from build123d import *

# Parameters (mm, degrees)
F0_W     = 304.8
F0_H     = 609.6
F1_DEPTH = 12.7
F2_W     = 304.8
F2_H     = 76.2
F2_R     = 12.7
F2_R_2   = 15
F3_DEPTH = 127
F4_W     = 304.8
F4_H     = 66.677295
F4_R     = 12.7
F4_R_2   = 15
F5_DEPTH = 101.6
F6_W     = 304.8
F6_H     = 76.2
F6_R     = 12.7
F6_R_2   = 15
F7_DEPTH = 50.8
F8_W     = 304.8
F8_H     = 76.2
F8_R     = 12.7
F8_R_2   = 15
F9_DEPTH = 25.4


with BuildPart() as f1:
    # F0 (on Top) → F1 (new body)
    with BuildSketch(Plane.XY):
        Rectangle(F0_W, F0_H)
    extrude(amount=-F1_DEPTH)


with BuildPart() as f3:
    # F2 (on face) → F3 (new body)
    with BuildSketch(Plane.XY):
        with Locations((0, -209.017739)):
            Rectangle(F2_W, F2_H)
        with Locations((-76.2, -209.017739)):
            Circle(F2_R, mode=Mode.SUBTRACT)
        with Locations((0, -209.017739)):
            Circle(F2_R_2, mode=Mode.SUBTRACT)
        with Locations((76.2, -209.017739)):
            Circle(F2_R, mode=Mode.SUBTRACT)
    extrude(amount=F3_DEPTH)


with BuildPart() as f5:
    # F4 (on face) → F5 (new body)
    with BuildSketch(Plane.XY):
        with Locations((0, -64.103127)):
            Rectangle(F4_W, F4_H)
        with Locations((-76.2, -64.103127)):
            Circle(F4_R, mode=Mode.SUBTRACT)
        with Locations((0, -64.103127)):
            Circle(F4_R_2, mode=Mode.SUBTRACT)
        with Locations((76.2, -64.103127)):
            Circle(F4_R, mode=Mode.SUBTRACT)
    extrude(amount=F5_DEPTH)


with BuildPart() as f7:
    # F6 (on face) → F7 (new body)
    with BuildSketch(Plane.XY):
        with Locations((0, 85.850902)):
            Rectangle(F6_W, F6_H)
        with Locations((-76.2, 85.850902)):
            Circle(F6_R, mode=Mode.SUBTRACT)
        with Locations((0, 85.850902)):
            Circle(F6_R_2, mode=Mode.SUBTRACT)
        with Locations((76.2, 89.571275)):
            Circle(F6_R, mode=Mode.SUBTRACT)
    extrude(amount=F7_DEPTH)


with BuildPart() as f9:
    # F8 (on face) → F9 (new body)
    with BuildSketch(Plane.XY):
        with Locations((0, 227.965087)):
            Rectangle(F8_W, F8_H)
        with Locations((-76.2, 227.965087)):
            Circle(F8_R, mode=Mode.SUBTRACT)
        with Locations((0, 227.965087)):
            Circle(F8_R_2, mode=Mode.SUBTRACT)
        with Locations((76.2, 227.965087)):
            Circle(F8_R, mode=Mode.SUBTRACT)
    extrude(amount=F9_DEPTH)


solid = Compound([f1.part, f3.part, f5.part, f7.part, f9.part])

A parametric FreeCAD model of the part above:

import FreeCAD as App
import Part
import Sketcher
Q = App.Units.Quantity


def add_polygon(sketch, points):
    """Adds a closed chain of lines whose ends are joined by coincident constraints."""
    first, n = sketch.GeometryCount, len(points)
    for a, b in zip(points, points[1:] + points[:1]):
        sketch.addGeometry(Part.LineSegment(App.Vector(*a, 0), App.Vector(*b, 0)), False)
    for i in range(n):
        sketch.addConstraint(Sketcher.Constraint("Coincident", first + i, 2, first + (i + 1) % n, 1))

doc = App.newDocument("Part")
params = doc.addObject("Spreadsheet::Sheet", "Params")
for row, (alias, value) in enumerate([
    ("sketch1_width", "12 in"),
    ("sketch1_height", "24 in"),
    ("pad1_length", "0.5 in"),
    ("sketch2_diameter", "1 in"),
    ("sketch2_width", "12 in"),
    ("sketch2_height", "3 in"),
    ("pad2_length", "5 in"),
    ("sketch3_diameter", "1 in"),
    ("sketch3_width", "12 in"),
    ("pad3_length", "4 in"),
    ("sketch4_diameter", "1 in"),
    ("sketch4_width", "12 in"),
    ("sketch4_height", "3 in"),
    ("pad4_length", "2 in"),
    ("sketch5_diameter", "1 in"),
    ("sketch5_width", "12 in"),
    ("sketch5_height", "3 in"),
    ("pad5_length", "1 in"),
], start=1):
    params.set(f"A{row}", alias)
    params.set(f"B{row}", "=" + value)
    params.setAlias(f"B{row}", alias)

body = doc.addObject("PartDesign::Body", "Body")

# Sketch on XY plane
sketch1 = doc.addObject("Sketcher::SketchObject", "Sketch")
body.addObject(sketch1)
sketch1.AttachmentSupport = (doc.XY_Plane, [""])
sketch1.MapMode = "FlatFace"
add_polygon(sketch1, [(-152, 305), (-152, -305), (152, -305), (152, 305)])  # lines 0-3
sketch1.addConstraint([
    Sketcher.Constraint("Vertical", 0),
    Sketcher.Constraint("Horizontal", 1),
    Sketcher.Constraint("Vertical", 2),
    Sketcher.Constraint("Horizontal", 3),
    Sketcher.Constraint("Symmetric", 0, 2, 2, 2, -1, 1),
    Sketcher.Constraint("DistanceX", 1, 1, 1, 2, Q("12 in")),
    Sketcher.Constraint("DistanceY", 0, 2, 0, 1, Q("24 in")),
])
sketch1.setExpression("Constraints[9]", "Params.sketch1_width")
sketch1.setExpression("Constraints[10]", "Params.sketch1_height")
pad1 = doc.addObject("PartDesign::Pad", "Pad")
body.addObject(pad1)
pad1.Profile = sketch1
pad1.setExpression("Length", "Params.pad1_length")
pad1.Reversed = True
body2 = doc.addObject("PartDesign::Body", "Body001")

# Sketch on XY plane
sketch2 = doc.addObject("Sketcher::SketchObject", "Sketch001")
body2.addObject(sketch2)
sketch2.AttachmentSupport = (doc.getObject("XY_Plane001"), [""])
sketch2.MapMode = "FlatFace"
add_polygon(sketch2, [(-152, -171), (-152, -247), (152, -247), (152, -171)])  # lines 0-3
sketch2.addGeometry(Part.Circle(App.Vector(-76, -209, 0), App.Vector(0, 0, 1), 13), False)  # 4
sketch2.addGeometry(Part.Circle(App.Vector(0, -209, 0), App.Vector(0, 0, 1), 15), False)  # 5
sketch2.addGeometry(Part.Circle(App.Vector(76, -209, 0), App.Vector(0, 0, 1), 13), False)  # 6
sketch2.addConstraint([
    Sketcher.Constraint("Vertical", 0),
    Sketcher.Constraint("Horizontal", 1),
    Sketcher.Constraint("Vertical", 2),
    Sketcher.Constraint("Horizontal", 3),
    Sketcher.Constraint("Equal", 4, 6),
    Sketcher.Constraint("Symmetric", 4, 3, 6, 3, -2),
    Sketcher.Constraint("PointOnObject", 5, 3, -2),
    Sketcher.Constraint("Horizontal", 4, 3, 5, 3),
    Sketcher.Constraint("Diameter", 4, Q("1 in")),
    Sketcher.Constraint("DistanceX", 1, 1, 1, 2, Q("12 in")),
    Sketcher.Constraint("DistanceY", 0, 2, 0, 1, Q("3 in")),
    Sketcher.Constraint("DistanceX", 4, 3, -1, 1, Q("3 in")),
    Sketcher.Constraint("DistanceX", 0, 2, -1, 1, Q("6 in")),
    Sketcher.Constraint("DistanceY", 0, 2, 4, 3, Q("1.5 in")),
    Sketcher.Constraint("Diameter", 5, Q("30 mm")),
    Sketcher.Constraint("DistanceY", 4, 3, -1, 1, Q("209.017739 mm")),
])
sketch2.setExpression("Constraints[12]", "Params.sketch2_diameter")
sketch2.setExpression("Constraints[13]", "Params.sketch2_width")
sketch2.setExpression("Constraints[14]", "Params.sketch2_height")
pad2 = doc.addObject("PartDesign::Pad", "Pad001")
body2.addObject(pad2)
pad2.Profile = sketch2
pad2.setExpression("Length", "Params.pad2_length")
body3 = doc.addObject("PartDesign::Body", "Body002")

# Sketch on XY plane
sketch3 = doc.addObject("Sketcher::SketchObject", "Sketch002")
body3.addObject(sketch3)
sketch3.AttachmentSupport = (doc.getObject("XY_Plane002"), [""])
sketch3.MapMode = "FlatFace"
add_polygon(sketch3, [(-152, -31), (-152, -97), (152, -97), (152, -31)])  # lines 0-3
sketch3.addGeometry(Part.Circle(App.Vector(-76, -64, 0), App.Vector(0, 0, 1), 13), False)  # 4
sketch3.addGeometry(Part.Circle(App.Vector(0, -64, 0), App.Vector(0, 0, 1), 15), False)  # 5
sketch3.addGeometry(Part.Circle(App.Vector(76, -64, 0), App.Vector(0, 0, 1), 13), False)  # 6
sketch3.addConstraint([
    Sketcher.Constraint("Vertical", 0),
    Sketcher.Constraint("Horizontal", 1),
    Sketcher.Constraint("Vertical", 2),
    Sketcher.Constraint("Horizontal", 3),
    Sketcher.Constraint("Equal", 4, 6),
    Sketcher.Constraint("Symmetric", 4, 3, 6, 3, -2),
    Sketcher.Constraint("PointOnObject", 5, 3, -2),
    Sketcher.Constraint("Horizontal", 4, 3, 5, 3),
    Sketcher.Constraint("Diameter", 4, Q("1 in")),
    Sketcher.Constraint("DistanceX", 1, 1, 1, 2, Q("12 in")),
    Sketcher.Constraint("DistanceX", 4, 3, -1, 1, Q("3 in")),
    Sketcher.Constraint("DistanceX", 0, 2, -1, 1, Q("6 in")),
    Sketcher.Constraint("Diameter", 5, Q("30 mm")),
    Sketcher.Constraint("DistanceY", 2, 2, -1, 1, Q("1.2112 in")),
    Sketcher.Constraint("DistanceY", 0, 2, 0, 1, Q("66.677295 mm")),
    Sketcher.Constraint("DistanceY", 4, 3, -1, 1, Q("64.103127 mm")),
])
sketch3.setExpression("Constraints[12]", "Params.sketch3_diameter")
sketch3.setExpression("Constraints[13]", "Params.sketch3_width")
pad3 = doc.addObject("PartDesign::Pad", "Pad002")
body3.addObject(pad3)
pad3.Profile = sketch3
pad3.setExpression("Length", "Params.pad3_length")
body4 = doc.addObject("PartDesign::Body", "Body003")

# Sketch on XY plane
sketch4 = doc.addObject("Sketcher::SketchObject", "Sketch003")
body4.addObject(sketch4)
sketch4.AttachmentSupport = (doc.getObject("XY_Plane003"), [""])
sketch4.MapMode = "FlatFace"
add_polygon(sketch4, [(-152, 124), (-152, 48), (152, 48), (152, 124)])  # lines 0-3
sketch4.addGeometry(Part.Circle(App.Vector(-76, 86, 0), App.Vector(0, 0, 1), 13), False)  # 4
sketch4.addGeometry(Part.Circle(App.Vector(0, 86, 0), App.Vector(0, 0, 1), 15), False)  # 5
sketch4.addGeometry(Part.Circle(App.Vector(76, 90, 0), App.Vector(0, 0, 1), 13), False)  # 6
sketch4.addConstraint([
    Sketcher.Constraint("Vertical", 0),
    Sketcher.Constraint("Horizontal", 1),
    Sketcher.Constraint("Vertical", 2),
    Sketcher.Constraint("Horizontal", 3),
    Sketcher.Constraint("Equal", 4, 6),
    Sketcher.Constraint("PointOnObject", 5, 3, -2),
    Sketcher.Constraint("Horizontal", 4, 3, 5, 3),
    Sketcher.Constraint("Diameter", 4, Q("1 in")),
    Sketcher.Constraint("DistanceX", 1, 1, 1, 2, Q("12 in")),
    Sketcher.Constraint("DistanceY", 0, 2, 0, 1, Q("3 in")),
    Sketcher.Constraint("DistanceX", 4, 3, -1, 1, Q("3 in")),
    Sketcher.Constraint("DistanceX", -1, 1, 6, 3, Q("3 in")),
    Sketcher.Constraint("DistanceX", 0, 2, -1, 1, Q("6 in")),
    Sketcher.Constraint("DistanceY", 0, 2, 4, 3, Q("1.5 in")),
    Sketcher.Constraint("Diameter", 5, Q("30 mm")),
    Sketcher.Constraint("DistanceY", -1, 1, 2, 2, Q("123.950902 mm")),
    Sketcher.Constraint("DistanceY", -1, 1, 6, 3, Q("89.571275 mm")),
])
sketch4.setExpression("Constraints[11]", "Params.sketch4_diameter")
sketch4.setExpression("Constraints[12]", "Params.sketch4_width")
sketch4.setExpression("Constraints[13]", "Params.sketch4_height")
pad4 = doc.addObject("PartDesign::Pad", "Pad003")
body4.addObject(pad4)
pad4.Profile = sketch4
pad4.setExpression("Length", "Params.pad4_length")
body5 = doc.addObject("PartDesign::Body", "Body004")

# Sketch on XY plane
sketch5 = doc.addObject("Sketcher::SketchObject", "Sketch004")
body5.addObject(sketch5)
sketch5.AttachmentSupport = (doc.getObject("XY_Plane004"), [""])
sketch5.MapMode = "FlatFace"
add_polygon(sketch5, [(-152, 266), (-152, 190), (152, 190), (152, 266)])  # lines 0-3
sketch5.addGeometry(Part.Circle(App.Vector(-76, 228, 0), App.Vector(0, 0, 1), 13), False)  # 4
sketch5.addGeometry(Part.Circle(App.Vector(0, 228, 0), App.Vector(0, 0, 1), 15), False)  # 5
sketch5.addGeometry(Part.Circle(App.Vector(76, 228, 0), App.Vector(0, 0, 1), 13), False)  # 6
sketch5.addConstraint([
    Sketcher.Constraint("Vertical", 0),
    Sketcher.Constraint("Horizontal", 1),
    Sketcher.Constraint("Vertical", 2),
    Sketcher.Constraint("Horizontal", 3),
    Sketcher.Constraint("Equal", 4, 6),
    Sketcher.Constraint("Symmetric", 4, 3, 6, 3, -2),
    Sketcher.Constraint("PointOnObject", 5, 3, -2),
    Sketcher.Constraint("Horizontal", 4, 3, 5, 3),
    Sketcher.Constraint("Diameter", 4, Q("1 in")),
    Sketcher.Constraint("DistanceX", 1, 1, 1, 2, Q("12 in")),
    Sketcher.Constraint("DistanceY", 0, 2, 0, 1, Q("3 in")),
    Sketcher.Constraint("DistanceX", 4, 3, -1, 1, Q("3 in")),
    Sketcher.Constraint("DistanceX", 0, 2, -1, 1, Q("6 in")),
    Sketcher.Constraint("DistanceY", 0, 2, 4, 3, Q("1.5 in")),
    Sketcher.Constraint("Diameter", 5, Q("30 mm")),
    Sketcher.Constraint("DistanceY", -1, 1, 4, 3, Q("227.965087 mm")),
])
sketch5.setExpression("Constraints[12]", "Params.sketch5_diameter")
sketch5.setExpression("Constraints[13]", "Params.sketch5_width")
sketch5.setExpression("Constraints[14]", "Params.sketch5_height")
pad5 = doc.addObject("PartDesign::Pad", "Pad004")
body5.addObject(pad5)
pad5.Profile = sketch5
pad5.setExpression("Length", "Params.pad5_length")

doc.recompute()
